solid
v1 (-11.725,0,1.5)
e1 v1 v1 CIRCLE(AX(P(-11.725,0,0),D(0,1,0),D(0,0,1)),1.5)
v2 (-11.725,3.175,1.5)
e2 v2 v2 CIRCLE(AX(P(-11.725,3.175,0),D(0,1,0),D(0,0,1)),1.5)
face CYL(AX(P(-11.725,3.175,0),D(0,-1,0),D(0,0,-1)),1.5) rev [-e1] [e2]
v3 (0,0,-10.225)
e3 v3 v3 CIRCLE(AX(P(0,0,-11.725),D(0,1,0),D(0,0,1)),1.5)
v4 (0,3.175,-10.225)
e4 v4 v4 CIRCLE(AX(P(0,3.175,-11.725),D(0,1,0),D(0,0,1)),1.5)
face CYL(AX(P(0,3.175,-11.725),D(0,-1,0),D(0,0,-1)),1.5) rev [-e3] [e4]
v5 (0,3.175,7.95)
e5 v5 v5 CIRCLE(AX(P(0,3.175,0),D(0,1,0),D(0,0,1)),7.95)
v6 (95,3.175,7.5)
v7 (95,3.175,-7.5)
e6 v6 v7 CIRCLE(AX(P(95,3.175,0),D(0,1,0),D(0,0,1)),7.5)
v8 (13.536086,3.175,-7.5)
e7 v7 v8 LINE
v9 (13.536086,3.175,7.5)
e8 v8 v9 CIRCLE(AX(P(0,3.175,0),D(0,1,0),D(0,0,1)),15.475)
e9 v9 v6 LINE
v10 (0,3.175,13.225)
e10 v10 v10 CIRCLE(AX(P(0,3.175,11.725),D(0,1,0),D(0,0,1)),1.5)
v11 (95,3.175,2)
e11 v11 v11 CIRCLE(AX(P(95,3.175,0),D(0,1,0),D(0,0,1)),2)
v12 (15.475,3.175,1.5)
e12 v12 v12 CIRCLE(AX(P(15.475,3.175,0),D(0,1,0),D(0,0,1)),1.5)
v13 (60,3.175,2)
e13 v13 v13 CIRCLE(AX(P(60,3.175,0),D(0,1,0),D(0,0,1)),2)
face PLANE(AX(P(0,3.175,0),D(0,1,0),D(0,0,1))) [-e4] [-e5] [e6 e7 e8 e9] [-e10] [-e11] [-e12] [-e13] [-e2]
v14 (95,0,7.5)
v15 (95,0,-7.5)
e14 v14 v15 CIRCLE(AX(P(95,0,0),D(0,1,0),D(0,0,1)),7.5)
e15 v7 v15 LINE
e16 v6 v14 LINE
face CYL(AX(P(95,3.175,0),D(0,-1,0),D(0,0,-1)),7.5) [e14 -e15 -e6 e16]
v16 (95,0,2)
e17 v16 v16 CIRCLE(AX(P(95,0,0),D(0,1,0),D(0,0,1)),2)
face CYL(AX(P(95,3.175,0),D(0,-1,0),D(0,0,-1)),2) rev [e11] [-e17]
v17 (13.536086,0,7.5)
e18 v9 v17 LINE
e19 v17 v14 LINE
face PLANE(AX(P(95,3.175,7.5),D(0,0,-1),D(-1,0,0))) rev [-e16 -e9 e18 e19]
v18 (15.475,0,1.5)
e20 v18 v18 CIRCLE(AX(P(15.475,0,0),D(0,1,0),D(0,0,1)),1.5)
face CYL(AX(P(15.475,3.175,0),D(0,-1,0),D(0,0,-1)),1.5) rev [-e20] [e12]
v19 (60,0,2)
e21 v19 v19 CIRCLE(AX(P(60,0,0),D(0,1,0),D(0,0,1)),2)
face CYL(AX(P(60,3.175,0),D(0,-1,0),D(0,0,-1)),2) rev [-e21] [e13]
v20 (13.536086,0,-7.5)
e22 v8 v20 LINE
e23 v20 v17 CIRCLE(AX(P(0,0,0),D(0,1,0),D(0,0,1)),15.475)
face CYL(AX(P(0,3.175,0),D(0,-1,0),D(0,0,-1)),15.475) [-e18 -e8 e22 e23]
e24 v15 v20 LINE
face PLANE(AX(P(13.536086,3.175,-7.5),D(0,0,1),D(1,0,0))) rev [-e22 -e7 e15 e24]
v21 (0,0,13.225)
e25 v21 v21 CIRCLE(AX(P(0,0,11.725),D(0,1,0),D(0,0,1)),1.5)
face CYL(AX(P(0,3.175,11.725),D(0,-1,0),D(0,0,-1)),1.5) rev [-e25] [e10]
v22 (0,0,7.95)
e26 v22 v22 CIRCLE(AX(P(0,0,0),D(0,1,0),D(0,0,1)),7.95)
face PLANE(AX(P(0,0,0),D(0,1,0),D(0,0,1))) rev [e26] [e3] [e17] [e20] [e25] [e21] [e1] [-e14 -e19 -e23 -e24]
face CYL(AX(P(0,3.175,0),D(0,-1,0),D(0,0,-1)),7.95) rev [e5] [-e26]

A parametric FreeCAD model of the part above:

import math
import FreeCAD as App
import Part
import Sketcher
from FreeCAD import Vector

doc = App.newDocument("Part")
params = doc.addObject("Spreadsheet::Sheet", "Params")
for row, (alias, value) in enumerate([
    ("sketch1_diameter", "3 mm"),
    ("sketch1_diameter2", "4 mm"),
    ("sketch1_diameter3", "15.9 mm"),
    ("sketch1_radius", "7.5 mm"),
    ("pad1_length", "3.175 mm"),
], start=1):
    params.set(f"A{row}", alias)
    params.set(f"B{row}", "=" + value)
    params.setAlias(f"B{row}", alias)

body = doc.addObject("PartDesign::Body", "Body")

# Sketch on XZ plane
sketch1 = body.newObject("Sketcher::SketchObject", "Sketch")
sketch1.AttachmentSupport = (doc.getObject("XZ_Plane"), [""])
sketch1.MapMode = "FlatFace"
sketch1.addGeometry([
    Part.LineSegment(Vector(95, -7.5, 0), Vector(13.5, -7.5, 0)),  # 0
    Part.ArcOfCircle(Part.Circle(Vector(0, 0, 0), Vector(0, 0, 1), 15.5), math.radians(29), math.radians(331)),  # 1
    Part.LineSegment(Vector(13.5, 7.5, 0), Vector(95, 7.5, 0)),  # 2
    Part.ArcOfCircle(Part.Circle(Vector(95, 0, 0), Vector(0, 0, 1), 7.5), math.radians(-90), math.radians(90)),  # 3
    Part.Circle(Vector(0, 11.7, 0), Vector(0, 0, 1), 1.5),  # 4
    Part.Circle(Vector(95, 0, 0), Vector(0, 0, 1), 2),  # 5
    Part.Circle(Vector(60, 0, 0), Vector(0, 0, 1), 2),  # 6
    Part.Circle(Vector(15.5, 0, 0), Vector(0, 0, 1), 1.5),  # 7
    Part.Circle(Vector(0, 0, 0), Vector(0, 0, 1), 8),  # 8
    Part.Circle(Vector(-11.7, 0, 0), Vector(0, 0, 1), 1.5),  # 9
    Part.Circle(Vector(0, -11.7, 0), Vector(0, 0, 1), 1.5),  # 10
], False)
sketch1.addConstraint([
    Sketcher.Constraint("Coincident", 0, 2, 1, 2),
    Sketcher.Constraint("Coincident", 1, 1, 2, 1),
    Sketcher.Constraint("Tangent", 2, 2, 3, 2),
    Sketcher.Constraint("Tangent", 3, 1, 0, 1),
    Sketcher.Constraint("Horizontal", 0),
    Sketcher.Constraint("Horizontal", 2),
    Sketcher.Constraint("Coincident", 1, 3, -1, 1),
    Sketcher.Constraint("Coincident", 8, 3, -1, 1),
    Sketcher.Constraint("Coincident", 5, 3, 3, 3),
    Sketcher.Constraint("Equal", 5, 6),
    Sketcher.Constraint("Equal", 4, 7),
    Sketcher.Constraint("Equal", 7, 9),
    Sketcher.Constraint("Equal", 9, 10),
    Sketcher.Constraint("Symmetric", 4, 3, 10, 3, -1, 1),
    Sketcher.Constraint("PointOnObject", 3, 3, -1),
    Sketcher.Constraint("PointOnObject", 4, 3, -2),
    Sketcher.Constraint("PointOnObject", 6, 3, -1),
    Sketcher.Constraint("PointOnObject", 7, 3, -1),
    Sketcher.Constraint("PointOnObject", 9, 3, -1),
    Sketcher.Constraint("Diameter", 4, 3.0),
    Sketcher.Constraint("Diameter", 5, 4.0),
    Sketcher.Constraint("Diameter", 8, 15.9),
    Sketcher.Constraint("Radius", 3, 7.5),
    Sketcher.Constraint("DistanceX", -1, 1, 3, 3, 95.0),
    Sketcher.Constraint("DistanceX", -1, 1, 6, 3, 60.0),
    Sketcher.Constraint("Radius", 1, 15.475),
    Sketcher.Constraint("DistanceX", 9, 3, 7, 3, 27.2),
    Sketcher.Constraint("DistanceY", 10, 3, 4, 3, 23.45),
    Sketcher.Constraint("DistanceX", -1, 1, 7, 3, 15.475),
])
sketch1.setExpression("Constraints[19]", "Params.sketch1_diameter")
sketch1.setExpression("Constraints[20]", "Params.sketch1_diameter2")
sketch1.setExpression("Constraints[21]", "Params.sketch1_diameter3")
sketch1.setExpression("Constraints[22]", "Params.sketch1_radius")
pad1 = body.newObject("PartDesign::Pad", "Pad")
pad1.Profile = sketch1
pad1.setExpression("Length", "Params.pad1_length")
pad1.Reversed = True

doc.recompute()
